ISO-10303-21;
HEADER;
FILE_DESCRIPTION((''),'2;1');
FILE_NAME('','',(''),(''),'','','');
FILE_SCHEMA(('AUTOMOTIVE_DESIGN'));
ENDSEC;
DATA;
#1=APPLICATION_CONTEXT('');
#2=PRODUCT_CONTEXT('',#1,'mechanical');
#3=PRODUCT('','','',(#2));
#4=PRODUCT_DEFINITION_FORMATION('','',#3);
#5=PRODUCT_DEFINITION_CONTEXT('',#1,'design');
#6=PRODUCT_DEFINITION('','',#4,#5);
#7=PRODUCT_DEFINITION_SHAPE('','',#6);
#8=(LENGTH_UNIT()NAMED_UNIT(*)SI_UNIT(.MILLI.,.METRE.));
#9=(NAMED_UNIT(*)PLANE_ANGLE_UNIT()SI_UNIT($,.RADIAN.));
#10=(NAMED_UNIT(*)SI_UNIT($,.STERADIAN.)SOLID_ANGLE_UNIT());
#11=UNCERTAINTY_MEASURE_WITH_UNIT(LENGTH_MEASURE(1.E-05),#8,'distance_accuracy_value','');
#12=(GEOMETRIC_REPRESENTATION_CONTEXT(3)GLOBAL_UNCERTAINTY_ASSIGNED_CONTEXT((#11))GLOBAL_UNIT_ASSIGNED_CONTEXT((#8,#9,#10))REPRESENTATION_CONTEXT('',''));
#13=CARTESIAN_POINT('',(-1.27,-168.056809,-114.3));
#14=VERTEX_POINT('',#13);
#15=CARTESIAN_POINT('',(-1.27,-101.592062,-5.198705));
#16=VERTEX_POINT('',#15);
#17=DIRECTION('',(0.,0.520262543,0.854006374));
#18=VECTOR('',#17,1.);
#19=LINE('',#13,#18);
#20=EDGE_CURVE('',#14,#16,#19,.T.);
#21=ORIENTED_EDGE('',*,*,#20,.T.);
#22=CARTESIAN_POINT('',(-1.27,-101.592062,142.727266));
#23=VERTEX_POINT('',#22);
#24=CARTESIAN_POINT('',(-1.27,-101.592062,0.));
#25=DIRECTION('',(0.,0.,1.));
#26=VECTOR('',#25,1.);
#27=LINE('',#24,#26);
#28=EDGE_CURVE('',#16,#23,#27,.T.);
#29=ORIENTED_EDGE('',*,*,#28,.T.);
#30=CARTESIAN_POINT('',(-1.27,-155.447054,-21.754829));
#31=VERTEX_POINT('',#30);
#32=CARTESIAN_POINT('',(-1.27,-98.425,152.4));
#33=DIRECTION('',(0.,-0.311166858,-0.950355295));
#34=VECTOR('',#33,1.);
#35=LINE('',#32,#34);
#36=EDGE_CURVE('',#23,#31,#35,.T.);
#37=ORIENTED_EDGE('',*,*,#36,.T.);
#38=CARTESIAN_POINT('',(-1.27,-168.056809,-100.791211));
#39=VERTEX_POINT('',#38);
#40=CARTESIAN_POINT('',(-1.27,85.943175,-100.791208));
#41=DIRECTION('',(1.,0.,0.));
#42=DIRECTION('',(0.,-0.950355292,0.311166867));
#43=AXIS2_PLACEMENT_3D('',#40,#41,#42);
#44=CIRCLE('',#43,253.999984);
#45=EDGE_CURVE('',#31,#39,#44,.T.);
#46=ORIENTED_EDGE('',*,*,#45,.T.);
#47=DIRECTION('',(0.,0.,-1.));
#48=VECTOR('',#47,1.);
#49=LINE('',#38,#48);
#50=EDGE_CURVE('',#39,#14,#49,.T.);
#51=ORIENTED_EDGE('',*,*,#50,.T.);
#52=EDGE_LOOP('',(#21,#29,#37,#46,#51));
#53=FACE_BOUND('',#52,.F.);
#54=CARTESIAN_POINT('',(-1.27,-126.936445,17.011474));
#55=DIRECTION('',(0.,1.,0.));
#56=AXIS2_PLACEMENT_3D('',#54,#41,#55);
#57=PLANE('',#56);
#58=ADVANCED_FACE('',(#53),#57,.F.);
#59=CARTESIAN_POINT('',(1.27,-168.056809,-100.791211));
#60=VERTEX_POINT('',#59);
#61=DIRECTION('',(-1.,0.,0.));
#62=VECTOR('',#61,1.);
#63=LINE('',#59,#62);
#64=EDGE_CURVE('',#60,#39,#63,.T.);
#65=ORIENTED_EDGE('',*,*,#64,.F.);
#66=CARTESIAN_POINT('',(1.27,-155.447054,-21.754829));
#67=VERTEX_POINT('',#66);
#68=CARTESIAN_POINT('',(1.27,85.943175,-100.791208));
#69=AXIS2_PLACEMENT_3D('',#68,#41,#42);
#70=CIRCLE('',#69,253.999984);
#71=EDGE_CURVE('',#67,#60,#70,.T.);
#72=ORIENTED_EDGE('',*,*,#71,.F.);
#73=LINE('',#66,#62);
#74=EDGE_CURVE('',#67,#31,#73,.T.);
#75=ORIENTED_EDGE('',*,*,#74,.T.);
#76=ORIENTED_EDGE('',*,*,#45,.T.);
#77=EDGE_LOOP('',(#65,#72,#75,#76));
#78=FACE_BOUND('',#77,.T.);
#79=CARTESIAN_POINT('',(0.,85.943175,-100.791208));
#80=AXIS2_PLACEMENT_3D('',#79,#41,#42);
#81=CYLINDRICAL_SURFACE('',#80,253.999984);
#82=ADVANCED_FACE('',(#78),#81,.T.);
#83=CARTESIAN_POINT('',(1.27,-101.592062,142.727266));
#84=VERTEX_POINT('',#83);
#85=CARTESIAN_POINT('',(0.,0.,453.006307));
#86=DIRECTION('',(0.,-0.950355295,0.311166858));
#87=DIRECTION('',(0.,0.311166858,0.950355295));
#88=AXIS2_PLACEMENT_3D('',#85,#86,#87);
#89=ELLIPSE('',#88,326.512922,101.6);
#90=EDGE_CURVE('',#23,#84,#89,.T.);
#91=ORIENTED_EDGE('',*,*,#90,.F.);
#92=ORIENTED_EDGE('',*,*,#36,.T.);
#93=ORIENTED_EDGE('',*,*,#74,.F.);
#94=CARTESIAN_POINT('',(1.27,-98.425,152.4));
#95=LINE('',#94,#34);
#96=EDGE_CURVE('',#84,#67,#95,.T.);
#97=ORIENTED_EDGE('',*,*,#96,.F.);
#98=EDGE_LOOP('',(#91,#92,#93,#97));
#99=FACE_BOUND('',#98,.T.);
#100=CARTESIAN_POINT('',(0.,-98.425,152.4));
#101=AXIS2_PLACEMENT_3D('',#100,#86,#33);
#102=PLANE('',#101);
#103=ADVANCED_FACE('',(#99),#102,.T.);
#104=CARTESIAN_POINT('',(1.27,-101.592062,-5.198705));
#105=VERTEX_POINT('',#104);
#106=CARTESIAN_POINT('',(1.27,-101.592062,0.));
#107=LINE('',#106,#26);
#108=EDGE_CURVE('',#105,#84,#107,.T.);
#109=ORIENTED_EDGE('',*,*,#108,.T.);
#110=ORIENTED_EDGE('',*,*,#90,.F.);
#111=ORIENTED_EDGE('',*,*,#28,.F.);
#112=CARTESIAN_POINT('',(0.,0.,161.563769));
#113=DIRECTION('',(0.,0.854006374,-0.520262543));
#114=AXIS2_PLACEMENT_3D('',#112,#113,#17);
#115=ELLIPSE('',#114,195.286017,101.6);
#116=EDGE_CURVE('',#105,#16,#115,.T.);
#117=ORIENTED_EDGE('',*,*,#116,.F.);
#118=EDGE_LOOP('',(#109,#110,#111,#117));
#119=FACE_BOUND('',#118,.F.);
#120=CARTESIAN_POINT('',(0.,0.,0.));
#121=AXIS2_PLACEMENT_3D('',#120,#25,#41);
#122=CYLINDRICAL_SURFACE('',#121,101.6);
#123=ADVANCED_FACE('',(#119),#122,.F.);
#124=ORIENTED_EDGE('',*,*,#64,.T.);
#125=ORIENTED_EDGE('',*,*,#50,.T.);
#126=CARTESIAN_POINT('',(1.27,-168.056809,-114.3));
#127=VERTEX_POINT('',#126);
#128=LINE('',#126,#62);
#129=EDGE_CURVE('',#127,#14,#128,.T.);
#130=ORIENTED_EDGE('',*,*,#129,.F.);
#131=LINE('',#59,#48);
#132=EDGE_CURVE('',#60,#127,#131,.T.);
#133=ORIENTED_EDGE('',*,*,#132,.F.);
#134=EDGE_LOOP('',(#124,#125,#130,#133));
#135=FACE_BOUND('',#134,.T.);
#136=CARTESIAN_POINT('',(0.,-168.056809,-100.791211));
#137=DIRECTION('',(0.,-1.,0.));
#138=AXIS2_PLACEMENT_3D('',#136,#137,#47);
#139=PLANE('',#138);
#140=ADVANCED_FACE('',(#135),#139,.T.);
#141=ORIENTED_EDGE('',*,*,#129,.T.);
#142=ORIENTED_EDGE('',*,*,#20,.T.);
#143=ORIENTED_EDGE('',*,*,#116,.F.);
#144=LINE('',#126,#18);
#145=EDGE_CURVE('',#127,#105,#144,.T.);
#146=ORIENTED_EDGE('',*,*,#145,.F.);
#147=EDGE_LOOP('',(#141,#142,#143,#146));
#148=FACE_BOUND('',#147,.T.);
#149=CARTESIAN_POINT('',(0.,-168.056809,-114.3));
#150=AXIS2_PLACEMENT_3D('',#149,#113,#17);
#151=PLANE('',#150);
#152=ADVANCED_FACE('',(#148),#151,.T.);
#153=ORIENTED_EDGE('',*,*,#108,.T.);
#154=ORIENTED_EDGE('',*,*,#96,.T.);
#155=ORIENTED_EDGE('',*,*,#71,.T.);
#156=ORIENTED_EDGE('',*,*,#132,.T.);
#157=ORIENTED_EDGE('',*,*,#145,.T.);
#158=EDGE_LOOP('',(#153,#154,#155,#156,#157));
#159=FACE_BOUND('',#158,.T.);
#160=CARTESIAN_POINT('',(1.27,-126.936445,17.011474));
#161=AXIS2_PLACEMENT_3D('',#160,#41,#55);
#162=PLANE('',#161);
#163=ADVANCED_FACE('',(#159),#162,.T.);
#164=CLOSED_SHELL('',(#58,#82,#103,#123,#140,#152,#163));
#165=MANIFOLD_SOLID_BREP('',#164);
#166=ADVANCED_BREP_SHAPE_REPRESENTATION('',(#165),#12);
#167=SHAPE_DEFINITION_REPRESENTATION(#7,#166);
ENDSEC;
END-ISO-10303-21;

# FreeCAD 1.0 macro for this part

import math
import FreeCAD as App
import Part
import Sketcher
Q = App.Units.Quantity

doc = App.newDocument("Part")
body = doc.addObject("PartDesign::Body", "Body")

# Sketch on YZ plane
sketch1 = body.newObject("Sketcher::SketchObject", "Sketch")
sketch1.AttachmentSupport = (doc.getObject("YZ_Plane"), [""])
sketch1.MapMode = "FlatFace"
sketch1.addGeometry(Part.LineSegment(App.Vector(-168, -114, 0), App.Vector(-98, 0, 0)), False)
sketch1.addGeometry(Part.LineSegment(App.Vector(-98, 0, 0), App.Vector(-98, 152, 0)), False)
sketch1.addGeometry(Part.LineSegment(App.Vector(-98, 152, 0), App.Vector(-155, -22, 0)), False)
sketch1.addGeometry(Part.ArcOfCircle(Part.Circle(App.Vector(86, -101, 0), App.Vector(0, 0, 1), 254), math.radians(161.87), math.radians(180)), False)
sketch1.addGeometry(Part.LineSegment(App.Vector(-168, -101, 0), App.Vector(-168, -114, 0)), False)
sketch1.addConstraint(Sketcher.Constraint("Coincident", 0, 2, 1, 1))
sketch1.addConstraint(Sketcher.Constraint("Coincident", 1, 2, 2, 1))
sketch1.addConstraint(Sketcher.Constraint("Tangent", 2, 2, 3, 1))
sketch1.addConstraint(Sketcher.Constraint("Tangent", 3, 2, 4, 1))
sketch1.addConstraint(Sketcher.Constraint("Coincident", 4, 2, 0, 1))
sketch1.addConstraint(Sketcher.Constraint("Vertical", 1))
sketch1.addConstraint(Sketcher.Constraint("Vertical", 4))
sketch1.addConstraint(Sketcher.Constraint("PointOnObject", 0, 2, -1))
sketch1.addConstraint(Sketcher.Constraint("DistanceY", 1, 1, 1, 2, Q("6 in")))
sketch1.addConstraint(Sketcher.Constraint("DistanceY", 4, 2, -1, 1, Q("4.5 in")))
sketch1.addConstraint(Sketcher.Constraint("DistanceX", 0, 2, -1, 1, Q("3.875 in")))
sketch1.addConstraint(Sketcher.Constraint("Radius", 3, 253.999984))
sketch1.addConstraint(Sketcher.Constraint("DistanceY", 4, 2, 4, 1, 13.508789))
sketch1.addConstraint(Sketcher.Constraint("Distance", 0, 133.839751))
pad1 = body.newObject("PartDesign::Pad", "Pad")
pad1.Profile = sketch1
pad1.Length = Q("0.1 in")
pad1.Midplane = True

# Sketch on XY plane
sketch2 = body.newObject("Sketcher::SketchObject", "Sketch001")
sketch2.AttachmentSupport = (doc.getObject("XY_Plane"), [""])
sketch2.MapMode = "FlatFace"
sketch2.addGeometry(Part.Circle(App.Vector(0, 0, 0), App.Vector(0, 0, 1), 102), False)
sketch2.addConstraint(Sketcher.Constraint("Coincident", 0, 3, -1, 1))
sketch2.addConstraint(Sketcher.Constraint("Diameter", 0, Q("8 in")))
pocket1 = body.newObject("PartDesign::Pocket", "Pocket")
pocket1.Profile = sketch2
pocket1.Length = Q("13.16 in")
pocket1.Midplane = True

doc.recompute()
